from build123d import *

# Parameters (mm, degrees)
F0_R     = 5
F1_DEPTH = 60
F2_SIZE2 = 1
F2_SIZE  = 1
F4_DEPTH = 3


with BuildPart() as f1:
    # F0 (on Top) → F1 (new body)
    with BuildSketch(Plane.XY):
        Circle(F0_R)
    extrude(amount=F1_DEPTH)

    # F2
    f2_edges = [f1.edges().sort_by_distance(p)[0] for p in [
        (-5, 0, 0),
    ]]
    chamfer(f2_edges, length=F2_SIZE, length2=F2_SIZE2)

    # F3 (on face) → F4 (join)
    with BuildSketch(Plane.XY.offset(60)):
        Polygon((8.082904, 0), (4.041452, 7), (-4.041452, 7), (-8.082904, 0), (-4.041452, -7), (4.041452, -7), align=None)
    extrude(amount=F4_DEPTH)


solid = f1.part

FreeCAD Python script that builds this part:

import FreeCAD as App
import Part
import Sketcher
Q = App.Units.Quantity


def edges_at(feature, points):
    """Names of the edges that pass closest to the given points."""
    edges = feature.Shape.Edges
    near = lambda p: min(range(len(edges)), key=lambda i: edges[i].distToShape(Part.Vertex(*p))[0])
    return sorted({f"Edge{near(p) + 1}" for p in points})


def add_polygon(sketch, points):
    """Adds a closed chain of lines whose ends are joined by coincident constraints."""
    first, n = sketch.GeometryCount, len(points)
    for a, b in zip(points, points[1:] + points[:1]):
        sketch.addGeometry(Part.LineSegment(App.Vector(*a, 0), App.Vector(*b, 0)), False)
    for i in range(n):
        sketch.addConstraint(Sketcher.Constraint("Coincident", first + i, 2, first + (i + 1) % n, 1))

doc = App.newDocument("Part")
body = doc.addObject("PartDesign::Body", "Body")

sketch1 = body.newObject("Sketcher::SketchObject", "Sketch")
sketch1.AttachmentSupport = (doc.getObject("XY_Plane"), [""])
sketch1.MapMode = "FlatFace"
sketch1.addGeometry(Part.Circle(App.Vector(0, 0, 0), App.Vector(0, 0, 1), 5), False)
sketch1.addConstraint([
    Sketcher.Constraint("Coincident", 0, 3, -1, 1),
    Sketcher.Constraint("Diameter", 0, 10.0),
])
pad1 = body.newObject("PartDesign::Pad", "Pad")
pad1.Profile = sketch1
pad1.Length = 60
doc.recompute()

chamfer = body.newObject("PartDesign::Chamfer", "Chamfer")
chamfer.Base = (pad1, edges_at(pad1, [(-5, 0, 0)]))
chamfer.ChamferType = "Two distances"
chamfer.Size = 1
chamfer.Size2 = 1

sketch2 = body.newObject("Sketcher::SketchObject", "Sketch001")
sketch2.AttachmentSupport = (doc.getObject("XY_Plane"), [""])
sketch2.MapMode = "FlatFace"
sketch2.AttachmentOffset = App.Placement(App.Vector(0, 0, 60), App.Rotation())
add_polygon(sketch2, [(8.082904, 0), (4.041452, 7), (-4.041452, 7), (-8.082904, 0), (-4.041452, -7), (4.041452, -7)])
sketch2.addConstraint([
    Sketcher.Constraint("Horizontal", 1),
    Sketcher.Constraint("Horizontal", 4),
    Sketcher.Constraint("Symmetric", 0, 2, 3, 2, -1, 1),
    Sketcher.Constraint("Symmetric", 2, 2, 5, 2, -1, 1),
    Sketcher.Constraint("PointOnObject", 2, 2, -1),
    Sketcher.Constraint("Parallel", 2, 5),
    Sketcher.Constraint("Vertical", 1, 2, 3, 2),
    Sketcher.Constraint("Angle", 0, Q("120.000001 deg")),
    Sketcher.Constraint("DistanceY", -1, 1, 0, 2, 7.0),
    Sketcher.Constraint("DistanceX", 1, 2, 1, 1, 8.082904),
])
pad2 = body.newObject("PartDesign::Pad", "Pad001")
pad2.Profile = sketch2
pad2.Length = 3

doc.recompute()
